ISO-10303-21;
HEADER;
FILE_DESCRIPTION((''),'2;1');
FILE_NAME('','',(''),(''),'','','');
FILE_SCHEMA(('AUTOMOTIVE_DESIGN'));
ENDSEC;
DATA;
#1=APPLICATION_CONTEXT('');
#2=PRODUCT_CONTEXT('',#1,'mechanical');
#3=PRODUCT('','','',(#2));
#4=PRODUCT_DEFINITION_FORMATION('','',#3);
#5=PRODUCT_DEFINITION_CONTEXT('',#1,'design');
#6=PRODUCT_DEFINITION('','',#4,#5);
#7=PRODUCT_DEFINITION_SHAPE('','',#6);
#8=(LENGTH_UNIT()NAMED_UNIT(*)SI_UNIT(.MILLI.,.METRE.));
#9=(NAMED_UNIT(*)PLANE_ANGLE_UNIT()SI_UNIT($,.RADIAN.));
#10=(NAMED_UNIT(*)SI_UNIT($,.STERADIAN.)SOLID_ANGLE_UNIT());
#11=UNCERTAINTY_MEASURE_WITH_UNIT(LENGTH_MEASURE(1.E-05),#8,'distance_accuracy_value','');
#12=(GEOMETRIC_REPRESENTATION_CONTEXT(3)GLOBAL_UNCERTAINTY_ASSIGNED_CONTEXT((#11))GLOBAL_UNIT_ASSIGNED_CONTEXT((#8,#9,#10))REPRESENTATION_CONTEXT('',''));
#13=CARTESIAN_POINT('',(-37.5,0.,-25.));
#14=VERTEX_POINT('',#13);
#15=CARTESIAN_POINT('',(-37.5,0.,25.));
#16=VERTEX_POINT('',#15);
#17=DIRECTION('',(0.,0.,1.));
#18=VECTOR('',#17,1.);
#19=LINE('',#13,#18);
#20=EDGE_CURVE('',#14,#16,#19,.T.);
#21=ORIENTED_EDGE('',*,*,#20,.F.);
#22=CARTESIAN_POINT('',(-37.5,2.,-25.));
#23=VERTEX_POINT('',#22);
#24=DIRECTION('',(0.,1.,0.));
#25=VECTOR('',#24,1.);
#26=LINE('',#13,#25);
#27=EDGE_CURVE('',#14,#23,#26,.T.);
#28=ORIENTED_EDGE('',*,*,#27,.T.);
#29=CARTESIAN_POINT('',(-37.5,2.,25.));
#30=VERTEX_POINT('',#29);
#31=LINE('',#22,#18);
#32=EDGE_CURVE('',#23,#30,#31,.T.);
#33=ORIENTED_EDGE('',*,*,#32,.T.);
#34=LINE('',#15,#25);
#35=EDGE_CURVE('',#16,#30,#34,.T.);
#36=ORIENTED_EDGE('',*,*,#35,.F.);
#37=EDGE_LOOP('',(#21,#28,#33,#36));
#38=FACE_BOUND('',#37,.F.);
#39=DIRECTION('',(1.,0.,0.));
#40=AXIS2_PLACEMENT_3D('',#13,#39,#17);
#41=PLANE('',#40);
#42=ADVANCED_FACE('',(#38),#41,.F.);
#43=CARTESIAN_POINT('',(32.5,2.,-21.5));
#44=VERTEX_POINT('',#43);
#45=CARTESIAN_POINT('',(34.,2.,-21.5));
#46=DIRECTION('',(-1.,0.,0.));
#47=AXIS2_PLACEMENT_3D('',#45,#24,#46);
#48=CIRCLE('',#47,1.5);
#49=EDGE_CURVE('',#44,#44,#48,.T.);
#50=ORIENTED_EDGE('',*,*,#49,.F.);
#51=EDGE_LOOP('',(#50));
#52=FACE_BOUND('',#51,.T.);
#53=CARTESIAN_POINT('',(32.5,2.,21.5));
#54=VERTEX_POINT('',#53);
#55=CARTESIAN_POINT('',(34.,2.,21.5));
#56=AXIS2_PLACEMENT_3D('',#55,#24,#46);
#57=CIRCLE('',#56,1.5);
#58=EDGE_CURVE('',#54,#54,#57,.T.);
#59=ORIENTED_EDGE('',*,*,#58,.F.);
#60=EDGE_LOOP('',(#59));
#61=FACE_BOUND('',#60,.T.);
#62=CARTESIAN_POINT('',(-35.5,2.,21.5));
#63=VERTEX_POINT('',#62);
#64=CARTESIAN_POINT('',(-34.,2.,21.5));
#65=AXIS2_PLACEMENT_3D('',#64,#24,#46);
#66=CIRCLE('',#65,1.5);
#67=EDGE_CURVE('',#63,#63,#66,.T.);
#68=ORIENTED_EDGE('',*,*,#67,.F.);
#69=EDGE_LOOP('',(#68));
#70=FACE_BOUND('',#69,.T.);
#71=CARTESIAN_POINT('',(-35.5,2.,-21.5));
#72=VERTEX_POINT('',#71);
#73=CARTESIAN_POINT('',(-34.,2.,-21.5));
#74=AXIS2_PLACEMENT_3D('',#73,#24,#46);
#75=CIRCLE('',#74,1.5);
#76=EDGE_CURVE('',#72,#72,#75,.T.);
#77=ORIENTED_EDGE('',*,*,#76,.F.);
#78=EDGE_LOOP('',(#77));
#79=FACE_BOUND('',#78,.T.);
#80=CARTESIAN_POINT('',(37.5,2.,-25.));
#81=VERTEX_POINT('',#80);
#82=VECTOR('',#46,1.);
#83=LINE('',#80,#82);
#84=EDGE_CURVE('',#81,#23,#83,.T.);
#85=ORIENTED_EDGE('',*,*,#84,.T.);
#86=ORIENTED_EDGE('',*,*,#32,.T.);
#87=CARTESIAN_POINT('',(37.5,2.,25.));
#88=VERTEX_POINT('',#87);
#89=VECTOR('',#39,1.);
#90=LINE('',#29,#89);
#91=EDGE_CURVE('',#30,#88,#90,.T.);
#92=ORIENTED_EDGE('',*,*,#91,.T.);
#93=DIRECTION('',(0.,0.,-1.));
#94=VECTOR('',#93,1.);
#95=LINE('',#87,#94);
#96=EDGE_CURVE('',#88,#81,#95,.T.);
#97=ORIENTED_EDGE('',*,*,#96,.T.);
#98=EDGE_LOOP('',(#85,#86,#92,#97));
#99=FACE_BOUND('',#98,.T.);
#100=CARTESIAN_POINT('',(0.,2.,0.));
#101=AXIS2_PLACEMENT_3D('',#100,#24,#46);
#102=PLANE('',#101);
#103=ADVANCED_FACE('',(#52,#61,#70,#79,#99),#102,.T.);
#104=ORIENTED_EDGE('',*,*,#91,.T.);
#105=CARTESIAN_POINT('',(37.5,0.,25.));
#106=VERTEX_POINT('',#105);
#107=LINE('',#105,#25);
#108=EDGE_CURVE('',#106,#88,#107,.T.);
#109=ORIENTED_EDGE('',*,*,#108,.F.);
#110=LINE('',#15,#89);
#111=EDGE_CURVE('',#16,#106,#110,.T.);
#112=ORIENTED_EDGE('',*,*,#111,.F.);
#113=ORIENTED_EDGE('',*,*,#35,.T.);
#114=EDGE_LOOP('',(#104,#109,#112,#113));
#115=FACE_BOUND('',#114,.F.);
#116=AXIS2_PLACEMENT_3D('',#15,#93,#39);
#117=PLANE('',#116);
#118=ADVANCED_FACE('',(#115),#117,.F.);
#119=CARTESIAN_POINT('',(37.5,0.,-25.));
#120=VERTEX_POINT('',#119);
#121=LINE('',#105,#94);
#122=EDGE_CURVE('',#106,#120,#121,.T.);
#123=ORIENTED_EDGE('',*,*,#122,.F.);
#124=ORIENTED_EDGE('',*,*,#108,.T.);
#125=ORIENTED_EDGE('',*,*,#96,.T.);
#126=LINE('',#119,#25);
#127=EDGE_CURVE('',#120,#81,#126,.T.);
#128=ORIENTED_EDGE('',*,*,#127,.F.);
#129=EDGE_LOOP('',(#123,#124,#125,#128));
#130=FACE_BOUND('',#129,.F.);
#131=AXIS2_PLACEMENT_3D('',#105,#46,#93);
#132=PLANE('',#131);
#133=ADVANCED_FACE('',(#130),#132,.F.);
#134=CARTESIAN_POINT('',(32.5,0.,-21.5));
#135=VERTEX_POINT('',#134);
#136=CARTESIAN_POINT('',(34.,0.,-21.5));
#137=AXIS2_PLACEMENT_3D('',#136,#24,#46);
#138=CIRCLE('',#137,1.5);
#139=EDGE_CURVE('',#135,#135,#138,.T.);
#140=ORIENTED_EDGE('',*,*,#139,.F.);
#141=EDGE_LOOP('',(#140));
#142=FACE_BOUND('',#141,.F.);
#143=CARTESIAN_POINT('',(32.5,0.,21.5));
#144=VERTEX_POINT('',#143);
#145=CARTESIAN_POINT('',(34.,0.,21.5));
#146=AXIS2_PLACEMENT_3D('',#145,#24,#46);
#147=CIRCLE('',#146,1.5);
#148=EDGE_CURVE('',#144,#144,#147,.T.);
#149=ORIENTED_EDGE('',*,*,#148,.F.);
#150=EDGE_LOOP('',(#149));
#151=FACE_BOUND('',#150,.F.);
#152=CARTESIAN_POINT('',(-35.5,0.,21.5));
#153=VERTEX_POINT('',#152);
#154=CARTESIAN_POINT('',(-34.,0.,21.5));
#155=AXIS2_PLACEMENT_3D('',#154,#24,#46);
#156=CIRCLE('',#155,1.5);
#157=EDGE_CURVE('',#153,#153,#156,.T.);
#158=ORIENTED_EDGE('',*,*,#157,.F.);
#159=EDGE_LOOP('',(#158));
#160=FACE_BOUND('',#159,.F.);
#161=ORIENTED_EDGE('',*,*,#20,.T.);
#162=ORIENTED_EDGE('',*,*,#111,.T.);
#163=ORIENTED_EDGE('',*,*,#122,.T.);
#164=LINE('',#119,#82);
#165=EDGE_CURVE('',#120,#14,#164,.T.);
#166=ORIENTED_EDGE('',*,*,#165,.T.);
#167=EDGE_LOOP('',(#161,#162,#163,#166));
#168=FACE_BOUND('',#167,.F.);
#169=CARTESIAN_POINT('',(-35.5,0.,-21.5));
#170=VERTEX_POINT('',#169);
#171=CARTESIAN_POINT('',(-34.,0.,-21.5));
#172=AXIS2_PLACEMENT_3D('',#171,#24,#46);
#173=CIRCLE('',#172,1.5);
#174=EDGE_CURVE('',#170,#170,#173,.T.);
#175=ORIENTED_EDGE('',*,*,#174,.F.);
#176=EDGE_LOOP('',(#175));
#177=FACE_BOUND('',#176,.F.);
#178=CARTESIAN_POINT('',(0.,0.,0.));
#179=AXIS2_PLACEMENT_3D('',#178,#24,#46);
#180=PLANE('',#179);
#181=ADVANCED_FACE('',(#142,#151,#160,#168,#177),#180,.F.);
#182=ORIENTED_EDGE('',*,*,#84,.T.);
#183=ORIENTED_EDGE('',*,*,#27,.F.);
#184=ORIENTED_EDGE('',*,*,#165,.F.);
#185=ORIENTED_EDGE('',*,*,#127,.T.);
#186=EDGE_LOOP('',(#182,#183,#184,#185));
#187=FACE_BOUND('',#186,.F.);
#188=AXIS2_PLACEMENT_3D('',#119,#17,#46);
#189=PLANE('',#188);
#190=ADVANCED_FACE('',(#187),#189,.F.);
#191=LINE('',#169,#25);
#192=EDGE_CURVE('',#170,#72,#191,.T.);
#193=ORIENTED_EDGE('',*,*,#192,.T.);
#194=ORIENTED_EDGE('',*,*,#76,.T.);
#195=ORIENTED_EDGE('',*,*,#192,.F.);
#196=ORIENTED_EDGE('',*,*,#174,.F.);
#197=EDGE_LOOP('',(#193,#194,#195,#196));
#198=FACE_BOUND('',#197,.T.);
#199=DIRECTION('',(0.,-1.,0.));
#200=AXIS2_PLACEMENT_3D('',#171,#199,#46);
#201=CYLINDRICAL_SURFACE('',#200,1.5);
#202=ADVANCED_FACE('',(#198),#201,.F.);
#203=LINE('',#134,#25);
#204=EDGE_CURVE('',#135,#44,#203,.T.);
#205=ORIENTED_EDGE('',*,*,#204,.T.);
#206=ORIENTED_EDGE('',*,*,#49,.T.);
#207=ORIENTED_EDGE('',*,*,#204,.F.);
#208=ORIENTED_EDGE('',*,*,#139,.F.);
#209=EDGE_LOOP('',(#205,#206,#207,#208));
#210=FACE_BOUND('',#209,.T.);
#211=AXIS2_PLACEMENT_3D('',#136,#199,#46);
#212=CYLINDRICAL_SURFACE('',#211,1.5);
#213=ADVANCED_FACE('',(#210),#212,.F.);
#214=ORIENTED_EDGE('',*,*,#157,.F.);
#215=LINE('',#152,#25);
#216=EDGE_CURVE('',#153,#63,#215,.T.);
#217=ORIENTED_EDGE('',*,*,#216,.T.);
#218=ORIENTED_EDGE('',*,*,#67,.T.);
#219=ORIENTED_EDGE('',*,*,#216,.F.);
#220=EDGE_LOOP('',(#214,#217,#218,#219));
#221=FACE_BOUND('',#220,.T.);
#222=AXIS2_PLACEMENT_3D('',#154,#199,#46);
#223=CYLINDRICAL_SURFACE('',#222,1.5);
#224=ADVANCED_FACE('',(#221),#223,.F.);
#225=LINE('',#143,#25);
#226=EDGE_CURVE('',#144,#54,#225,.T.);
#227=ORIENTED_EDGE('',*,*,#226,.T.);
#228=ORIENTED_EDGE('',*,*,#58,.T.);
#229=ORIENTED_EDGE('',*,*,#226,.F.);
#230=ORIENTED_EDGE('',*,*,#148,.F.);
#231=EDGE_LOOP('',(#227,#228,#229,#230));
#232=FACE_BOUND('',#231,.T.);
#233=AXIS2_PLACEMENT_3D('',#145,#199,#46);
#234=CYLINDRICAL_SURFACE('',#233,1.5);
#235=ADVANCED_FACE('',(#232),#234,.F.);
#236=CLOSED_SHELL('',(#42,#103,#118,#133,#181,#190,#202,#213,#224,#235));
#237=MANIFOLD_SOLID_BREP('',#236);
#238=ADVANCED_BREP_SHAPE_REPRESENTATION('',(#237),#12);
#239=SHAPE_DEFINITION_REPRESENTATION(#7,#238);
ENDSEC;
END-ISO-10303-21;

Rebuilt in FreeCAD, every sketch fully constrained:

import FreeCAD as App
import Part
import Sketcher
from FreeCAD import Vector
Q = App.Units.Quantity

doc = App.newDocument("Part")
body = doc.addObject("PartDesign::Body", "Body")

sketch1 = body.newObject("Sketcher::SketchObject", "Sketch")
sketch1.AttachmentSupport = (doc.getObject("XZ_Plane"), [""])
sketch1.MapMode = "FlatFace"
sketch1.addGeometry(Part.LineSegment(Vector(-37.5, -25, 0), Vector(-37.5, 25, 0)), False)
sketch1.addGeometry(Part.LineSegment(Vector(-37.5, 25, 0), Vector(37.5, 25, 0)), False)
sketch1.addGeometry(Part.LineSegment(Vector(37.5, 25, 0), Vector(37.5, -25, 0)), False)
sketch1.addGeometry(Part.LineSegment(Vector(37.5, -25, 0), Vector(-37.5, -25, 0)), False)
sketch1.addGeometry(Part.Circle(Vector(34, -21.5, 0), Vector(0, 0, 1), 1.5), False)
sketch1.addGeometry(Part.Circle(Vector(-34, -21.5, 0), Vector(0, 0, 1), 1.5), False)
sketch1.addGeometry(Part.Circle(Vector(34, 21.5, 0), Vector(0, 0, 1), 1.5), False)
sketch1.addGeometry(Part.Circle(Vector(-34, 21.5, 0), Vector(0, 0, 1), 1.5), False)
sketch1.addConstraint(Sketcher.Constraint("Coincident", 0, 2, 1, 1))
sketch1.addConstraint(Sketcher.Constraint("Coincident", 1, 2, 2, 1))
sketch1.addConstraint(Sketcher.Constraint("Coincident", 2, 2, 3, 1))
sketch1.addConstraint(Sketcher.Constraint("Coincident", 3, 2, 0, 1))
sketch1.addConstraint(Sketcher.Constraint("Vertical", 0))
sketch1.addConstraint(Sketcher.Constraint("Horizontal", 1))
sketch1.addConstraint(Sketcher.Constraint("Vertical", 2))
sketch1.addConstraint(Sketcher.Constraint("Horizontal", 3))
sketch1.addConstraint(Sketcher.Constraint("Equal", 4, 5))
sketch1.addConstraint(Sketcher.Constraint("Equal", 5, 6))
sketch1.addConstraint(Sketcher.Constraint("Equal", 6, 7))
sketch1.addConstraint(Sketcher.Constraint("Symmetric", 5, 3, 6, 3, -1, 1))
sketch1.addConstraint(Sketcher.Constraint("Symmetric", 4, 3, 7, 3, -1, 1))
sketch1.addConstraint(Sketcher.Constraint("Symmetric", 0, 2, 2, 2, -1, 1))
sketch1.addConstraint(Sketcher.Constraint("Symmetric", 4, 3, 5, 3, -2))
sketch1.addConstraint(Sketcher.Constraint("Diameter", 4, Q("3 mm")))
sketch1.addConstraint(Sketcher.Constraint("DistanceX", 1, 1, 1, 2, Q("75 mm")))
sketch1.addConstraint(Sketcher.Constraint("DistanceY", 0, 1, 0, 2, Q("50 mm")))
sketch1.addConstraint(Sketcher.Constraint("DistanceX", 5, 3, 4, 3, Q("68 mm")))
sketch1.addConstraint(Sketcher.Constraint("DistanceY", 4, 3, 6, 3, Q("43 mm")))
pad1 = body.newObject("PartDesign::Pad", "Pad")
pad1.Profile = sketch1
pad1.Length = 2
pad1.Reversed = True

doc.recompute()
